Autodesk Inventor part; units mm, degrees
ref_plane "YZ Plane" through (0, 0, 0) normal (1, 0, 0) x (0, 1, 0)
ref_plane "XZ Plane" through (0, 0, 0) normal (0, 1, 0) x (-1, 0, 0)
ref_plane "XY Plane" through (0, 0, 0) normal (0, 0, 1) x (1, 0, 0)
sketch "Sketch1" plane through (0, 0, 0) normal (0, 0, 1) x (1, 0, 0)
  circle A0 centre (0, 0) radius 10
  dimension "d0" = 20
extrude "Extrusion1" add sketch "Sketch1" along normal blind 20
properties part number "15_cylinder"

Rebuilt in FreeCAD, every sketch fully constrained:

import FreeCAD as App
import Part
import Sketcher

V = App.Vector

doc = App.newDocument("Part")
body = doc.addObject("PartDesign::Body", "Body")

# Sketch on XY plane
sketch1 = body.newObject("Sketcher::SketchObject", "Sketch")
sketch1.AttachmentSupport = (doc.getObject("XY_Plane"), [""])
sketch1.MapMode = "FlatFace"
sketch1.addGeometry(Part.Circle(V(0, 0, 0), V(0, 0, 1), 10), False)
sketch1.addConstraint([
    Sketcher.Constraint("Coincident", 0, 3, -1, 1),
    Sketcher.Constraint("Diameter", 0, 20.0),
])
pad1 = body.newObject("PartDesign::Pad", "Pad")
pad1.Profile = sketch1
pad1.Length = 20

doc.recompute()
